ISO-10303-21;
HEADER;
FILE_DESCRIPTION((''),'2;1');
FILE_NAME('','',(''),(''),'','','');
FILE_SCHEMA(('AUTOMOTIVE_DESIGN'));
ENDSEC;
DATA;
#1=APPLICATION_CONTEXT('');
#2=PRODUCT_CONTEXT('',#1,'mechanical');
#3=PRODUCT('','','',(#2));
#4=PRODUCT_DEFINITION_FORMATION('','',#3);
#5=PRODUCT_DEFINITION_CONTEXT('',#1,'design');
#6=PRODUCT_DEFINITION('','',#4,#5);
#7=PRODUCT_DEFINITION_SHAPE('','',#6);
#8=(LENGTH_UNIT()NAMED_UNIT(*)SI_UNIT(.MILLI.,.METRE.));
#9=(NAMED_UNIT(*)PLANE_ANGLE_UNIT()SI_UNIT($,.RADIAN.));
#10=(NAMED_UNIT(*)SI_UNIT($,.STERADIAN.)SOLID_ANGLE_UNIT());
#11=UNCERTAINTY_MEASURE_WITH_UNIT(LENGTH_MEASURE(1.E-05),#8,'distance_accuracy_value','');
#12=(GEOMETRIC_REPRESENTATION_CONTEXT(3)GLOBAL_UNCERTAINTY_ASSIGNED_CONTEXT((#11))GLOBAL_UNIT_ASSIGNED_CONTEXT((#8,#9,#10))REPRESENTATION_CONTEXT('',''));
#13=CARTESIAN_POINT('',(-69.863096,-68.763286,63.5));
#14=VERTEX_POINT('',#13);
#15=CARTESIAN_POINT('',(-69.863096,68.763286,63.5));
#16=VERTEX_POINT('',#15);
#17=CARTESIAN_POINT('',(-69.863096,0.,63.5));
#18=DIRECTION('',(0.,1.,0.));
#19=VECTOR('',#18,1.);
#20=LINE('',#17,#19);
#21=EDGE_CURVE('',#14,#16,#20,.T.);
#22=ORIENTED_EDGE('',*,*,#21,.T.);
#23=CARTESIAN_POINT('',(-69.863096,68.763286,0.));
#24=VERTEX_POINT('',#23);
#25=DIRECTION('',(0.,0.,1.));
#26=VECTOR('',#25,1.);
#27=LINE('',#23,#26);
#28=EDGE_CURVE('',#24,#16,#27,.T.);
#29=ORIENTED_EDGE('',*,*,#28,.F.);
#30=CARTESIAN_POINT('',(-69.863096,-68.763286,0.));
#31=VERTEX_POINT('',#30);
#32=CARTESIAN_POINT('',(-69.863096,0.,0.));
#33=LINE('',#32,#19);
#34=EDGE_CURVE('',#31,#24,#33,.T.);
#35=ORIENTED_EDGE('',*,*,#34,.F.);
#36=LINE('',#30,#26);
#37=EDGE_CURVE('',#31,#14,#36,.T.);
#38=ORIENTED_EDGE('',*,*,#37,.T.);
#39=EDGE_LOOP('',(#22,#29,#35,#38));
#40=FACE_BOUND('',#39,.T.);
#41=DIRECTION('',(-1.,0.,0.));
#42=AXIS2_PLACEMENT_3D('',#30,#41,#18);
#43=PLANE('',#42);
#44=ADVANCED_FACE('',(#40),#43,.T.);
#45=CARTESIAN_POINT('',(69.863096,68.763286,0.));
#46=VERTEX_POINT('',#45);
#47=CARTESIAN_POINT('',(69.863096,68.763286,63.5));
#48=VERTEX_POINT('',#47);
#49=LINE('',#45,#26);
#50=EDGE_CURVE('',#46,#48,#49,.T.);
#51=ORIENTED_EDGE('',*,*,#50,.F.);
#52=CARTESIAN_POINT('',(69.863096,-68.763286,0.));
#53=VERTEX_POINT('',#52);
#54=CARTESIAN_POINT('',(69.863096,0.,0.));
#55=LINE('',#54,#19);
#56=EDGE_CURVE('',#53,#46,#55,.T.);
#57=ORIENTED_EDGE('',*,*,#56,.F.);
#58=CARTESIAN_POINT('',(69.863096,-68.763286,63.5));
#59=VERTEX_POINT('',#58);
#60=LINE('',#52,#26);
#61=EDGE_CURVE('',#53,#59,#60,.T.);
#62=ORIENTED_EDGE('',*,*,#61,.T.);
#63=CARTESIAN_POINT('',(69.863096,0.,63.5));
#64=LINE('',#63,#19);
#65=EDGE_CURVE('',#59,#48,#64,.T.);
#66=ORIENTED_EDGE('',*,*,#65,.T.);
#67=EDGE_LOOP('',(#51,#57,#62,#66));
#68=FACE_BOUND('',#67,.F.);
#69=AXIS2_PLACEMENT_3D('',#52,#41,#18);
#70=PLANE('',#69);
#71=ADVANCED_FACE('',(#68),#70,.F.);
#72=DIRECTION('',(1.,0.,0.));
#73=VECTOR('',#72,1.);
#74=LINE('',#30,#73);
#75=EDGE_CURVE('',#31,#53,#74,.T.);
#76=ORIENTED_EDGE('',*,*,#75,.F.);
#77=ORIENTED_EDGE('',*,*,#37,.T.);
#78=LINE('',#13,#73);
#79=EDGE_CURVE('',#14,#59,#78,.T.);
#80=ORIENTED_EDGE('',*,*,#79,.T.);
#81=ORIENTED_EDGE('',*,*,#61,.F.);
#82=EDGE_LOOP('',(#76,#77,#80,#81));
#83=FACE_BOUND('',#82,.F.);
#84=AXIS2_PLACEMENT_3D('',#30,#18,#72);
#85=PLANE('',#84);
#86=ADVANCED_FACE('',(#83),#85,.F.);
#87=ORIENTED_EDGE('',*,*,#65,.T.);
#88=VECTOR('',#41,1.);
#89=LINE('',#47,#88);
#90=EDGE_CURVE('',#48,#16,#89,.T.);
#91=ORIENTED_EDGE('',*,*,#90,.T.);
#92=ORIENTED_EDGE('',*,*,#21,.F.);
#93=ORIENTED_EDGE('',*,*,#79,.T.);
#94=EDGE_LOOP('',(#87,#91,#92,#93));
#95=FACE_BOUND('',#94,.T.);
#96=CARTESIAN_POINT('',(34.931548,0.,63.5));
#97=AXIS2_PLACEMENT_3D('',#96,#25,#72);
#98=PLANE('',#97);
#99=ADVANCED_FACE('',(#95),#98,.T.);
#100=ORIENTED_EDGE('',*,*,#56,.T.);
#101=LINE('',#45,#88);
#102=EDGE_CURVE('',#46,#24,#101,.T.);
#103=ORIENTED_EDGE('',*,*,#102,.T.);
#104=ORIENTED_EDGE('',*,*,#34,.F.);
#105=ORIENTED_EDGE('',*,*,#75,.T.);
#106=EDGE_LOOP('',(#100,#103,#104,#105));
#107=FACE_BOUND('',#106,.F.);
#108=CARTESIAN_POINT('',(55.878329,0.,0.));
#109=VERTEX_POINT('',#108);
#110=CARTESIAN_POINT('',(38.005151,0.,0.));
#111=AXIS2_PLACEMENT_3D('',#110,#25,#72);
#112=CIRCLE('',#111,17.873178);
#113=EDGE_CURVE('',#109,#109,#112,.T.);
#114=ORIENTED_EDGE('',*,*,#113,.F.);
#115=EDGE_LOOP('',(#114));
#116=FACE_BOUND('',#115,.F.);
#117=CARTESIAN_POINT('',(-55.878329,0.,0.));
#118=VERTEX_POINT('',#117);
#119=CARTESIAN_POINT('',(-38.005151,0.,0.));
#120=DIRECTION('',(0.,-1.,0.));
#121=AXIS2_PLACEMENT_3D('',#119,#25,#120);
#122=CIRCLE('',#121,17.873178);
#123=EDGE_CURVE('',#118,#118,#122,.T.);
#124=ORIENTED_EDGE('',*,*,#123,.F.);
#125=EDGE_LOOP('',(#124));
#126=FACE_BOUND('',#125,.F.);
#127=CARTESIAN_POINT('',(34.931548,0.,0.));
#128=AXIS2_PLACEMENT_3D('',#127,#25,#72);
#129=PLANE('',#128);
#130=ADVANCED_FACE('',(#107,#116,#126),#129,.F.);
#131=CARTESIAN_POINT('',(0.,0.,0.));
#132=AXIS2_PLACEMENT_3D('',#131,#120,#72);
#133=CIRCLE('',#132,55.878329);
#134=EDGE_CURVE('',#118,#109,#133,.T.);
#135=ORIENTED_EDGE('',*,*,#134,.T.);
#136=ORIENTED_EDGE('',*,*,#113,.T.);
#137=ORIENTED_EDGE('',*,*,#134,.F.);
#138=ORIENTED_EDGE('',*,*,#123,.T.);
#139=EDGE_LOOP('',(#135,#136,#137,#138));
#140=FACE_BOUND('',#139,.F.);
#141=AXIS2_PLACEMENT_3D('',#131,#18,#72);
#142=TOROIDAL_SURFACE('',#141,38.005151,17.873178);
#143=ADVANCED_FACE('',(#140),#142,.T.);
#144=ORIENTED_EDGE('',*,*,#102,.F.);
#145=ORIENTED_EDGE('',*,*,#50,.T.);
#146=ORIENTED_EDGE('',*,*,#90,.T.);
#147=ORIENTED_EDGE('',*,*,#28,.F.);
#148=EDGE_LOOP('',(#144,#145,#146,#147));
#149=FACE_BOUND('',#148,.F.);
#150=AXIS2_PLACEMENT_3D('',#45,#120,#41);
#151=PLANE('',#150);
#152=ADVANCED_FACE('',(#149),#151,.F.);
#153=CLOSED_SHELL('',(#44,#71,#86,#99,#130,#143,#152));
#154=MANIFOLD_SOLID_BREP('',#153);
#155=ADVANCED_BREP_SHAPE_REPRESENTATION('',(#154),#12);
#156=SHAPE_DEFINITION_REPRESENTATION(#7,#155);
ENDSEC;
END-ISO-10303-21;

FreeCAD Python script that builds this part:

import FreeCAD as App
import Part
import Sketcher

V = App.Vector
Q = App.Units.Quantity


def add_polygon(sketch, points):
    """Adds a closed chain of lines whose ends are joined by coincident constraints."""
    first, n = sketch.GeometryCount, len(points)
    for a, b in zip(points, points[1:] + points[:1]):
        sketch.addGeometry(Part.LineSegment(App.Vector(*a, 0), App.Vector(*b, 0)), False)
    for i in range(n):
        sketch.addConstraint(Sketcher.Constraint("Coincident", first + i, 2, first + (i + 1) % n, 1))

doc = App.newDocument("Part")
body = doc.addObject("PartDesign::Body", "Body")

# Sketch on XY plane
sketch1 = doc.addObject("Sketcher::SketchObject", "Sketch")
body.addObject(sketch1)
sketch1.AttachmentSupport = (doc.XY_Plane, [""])
sketch1.MapMode = "FlatFace"
add_polygon(sketch1, [(70, -69), (70, 69), (-70, 69), (-70, -69)])  # lines 0-3
sketch1.addConstraint([
    Sketcher.Constraint("Vertical", 0),
    Sketcher.Constraint("Horizontal", 1),
    Sketcher.Constraint("Vertical", 2),
    Sketcher.Constraint("Horizontal", 3),
    Sketcher.Constraint("Symmetric", 0, 2, 2, 2, -1, 1),
    Sketcher.Constraint("DistanceX", 1, 2, 1, 1, 139.726192),
    Sketcher.Constraint("DistanceY", 0, 1, 0, 2, 137.526572),
])
pad1 = doc.addObject("PartDesign::Pad", "Pad")
body.addObject(pad1)
pad1.Profile = sketch1
pad1.Length = Q("2.5 in")

# Sketch on XY plane
sketch2 = doc.addObject("Sketcher::SketchObject", "Sketch001")
body.addObject(sketch2)
sketch2.AttachmentSupport = (doc.XY_Plane, [""])
sketch2.MapMode = "FlatFace"
sketch2.addGeometry(Part.Circle(V(38, 0, 0), V(0, 0, 1), 18), False)
sketch2.addConstraint([
    Sketcher.Constraint("PointOnObject", 0, 3, -1),
    Sketcher.Constraint("Diameter", 0, 35.746356),
    Sketcher.Constraint("DistanceX", -1, 1, 0, 3, 38.005151),
])
revolution = doc.addObject("PartDesign::Revolution", "Revolution")
body.addObject(revolution)
revolution.Profile = sketch2
revolution.ReferenceAxis = (sketch2, ["V_Axis"])
revolution.Angle = 360

doc.recompute()
